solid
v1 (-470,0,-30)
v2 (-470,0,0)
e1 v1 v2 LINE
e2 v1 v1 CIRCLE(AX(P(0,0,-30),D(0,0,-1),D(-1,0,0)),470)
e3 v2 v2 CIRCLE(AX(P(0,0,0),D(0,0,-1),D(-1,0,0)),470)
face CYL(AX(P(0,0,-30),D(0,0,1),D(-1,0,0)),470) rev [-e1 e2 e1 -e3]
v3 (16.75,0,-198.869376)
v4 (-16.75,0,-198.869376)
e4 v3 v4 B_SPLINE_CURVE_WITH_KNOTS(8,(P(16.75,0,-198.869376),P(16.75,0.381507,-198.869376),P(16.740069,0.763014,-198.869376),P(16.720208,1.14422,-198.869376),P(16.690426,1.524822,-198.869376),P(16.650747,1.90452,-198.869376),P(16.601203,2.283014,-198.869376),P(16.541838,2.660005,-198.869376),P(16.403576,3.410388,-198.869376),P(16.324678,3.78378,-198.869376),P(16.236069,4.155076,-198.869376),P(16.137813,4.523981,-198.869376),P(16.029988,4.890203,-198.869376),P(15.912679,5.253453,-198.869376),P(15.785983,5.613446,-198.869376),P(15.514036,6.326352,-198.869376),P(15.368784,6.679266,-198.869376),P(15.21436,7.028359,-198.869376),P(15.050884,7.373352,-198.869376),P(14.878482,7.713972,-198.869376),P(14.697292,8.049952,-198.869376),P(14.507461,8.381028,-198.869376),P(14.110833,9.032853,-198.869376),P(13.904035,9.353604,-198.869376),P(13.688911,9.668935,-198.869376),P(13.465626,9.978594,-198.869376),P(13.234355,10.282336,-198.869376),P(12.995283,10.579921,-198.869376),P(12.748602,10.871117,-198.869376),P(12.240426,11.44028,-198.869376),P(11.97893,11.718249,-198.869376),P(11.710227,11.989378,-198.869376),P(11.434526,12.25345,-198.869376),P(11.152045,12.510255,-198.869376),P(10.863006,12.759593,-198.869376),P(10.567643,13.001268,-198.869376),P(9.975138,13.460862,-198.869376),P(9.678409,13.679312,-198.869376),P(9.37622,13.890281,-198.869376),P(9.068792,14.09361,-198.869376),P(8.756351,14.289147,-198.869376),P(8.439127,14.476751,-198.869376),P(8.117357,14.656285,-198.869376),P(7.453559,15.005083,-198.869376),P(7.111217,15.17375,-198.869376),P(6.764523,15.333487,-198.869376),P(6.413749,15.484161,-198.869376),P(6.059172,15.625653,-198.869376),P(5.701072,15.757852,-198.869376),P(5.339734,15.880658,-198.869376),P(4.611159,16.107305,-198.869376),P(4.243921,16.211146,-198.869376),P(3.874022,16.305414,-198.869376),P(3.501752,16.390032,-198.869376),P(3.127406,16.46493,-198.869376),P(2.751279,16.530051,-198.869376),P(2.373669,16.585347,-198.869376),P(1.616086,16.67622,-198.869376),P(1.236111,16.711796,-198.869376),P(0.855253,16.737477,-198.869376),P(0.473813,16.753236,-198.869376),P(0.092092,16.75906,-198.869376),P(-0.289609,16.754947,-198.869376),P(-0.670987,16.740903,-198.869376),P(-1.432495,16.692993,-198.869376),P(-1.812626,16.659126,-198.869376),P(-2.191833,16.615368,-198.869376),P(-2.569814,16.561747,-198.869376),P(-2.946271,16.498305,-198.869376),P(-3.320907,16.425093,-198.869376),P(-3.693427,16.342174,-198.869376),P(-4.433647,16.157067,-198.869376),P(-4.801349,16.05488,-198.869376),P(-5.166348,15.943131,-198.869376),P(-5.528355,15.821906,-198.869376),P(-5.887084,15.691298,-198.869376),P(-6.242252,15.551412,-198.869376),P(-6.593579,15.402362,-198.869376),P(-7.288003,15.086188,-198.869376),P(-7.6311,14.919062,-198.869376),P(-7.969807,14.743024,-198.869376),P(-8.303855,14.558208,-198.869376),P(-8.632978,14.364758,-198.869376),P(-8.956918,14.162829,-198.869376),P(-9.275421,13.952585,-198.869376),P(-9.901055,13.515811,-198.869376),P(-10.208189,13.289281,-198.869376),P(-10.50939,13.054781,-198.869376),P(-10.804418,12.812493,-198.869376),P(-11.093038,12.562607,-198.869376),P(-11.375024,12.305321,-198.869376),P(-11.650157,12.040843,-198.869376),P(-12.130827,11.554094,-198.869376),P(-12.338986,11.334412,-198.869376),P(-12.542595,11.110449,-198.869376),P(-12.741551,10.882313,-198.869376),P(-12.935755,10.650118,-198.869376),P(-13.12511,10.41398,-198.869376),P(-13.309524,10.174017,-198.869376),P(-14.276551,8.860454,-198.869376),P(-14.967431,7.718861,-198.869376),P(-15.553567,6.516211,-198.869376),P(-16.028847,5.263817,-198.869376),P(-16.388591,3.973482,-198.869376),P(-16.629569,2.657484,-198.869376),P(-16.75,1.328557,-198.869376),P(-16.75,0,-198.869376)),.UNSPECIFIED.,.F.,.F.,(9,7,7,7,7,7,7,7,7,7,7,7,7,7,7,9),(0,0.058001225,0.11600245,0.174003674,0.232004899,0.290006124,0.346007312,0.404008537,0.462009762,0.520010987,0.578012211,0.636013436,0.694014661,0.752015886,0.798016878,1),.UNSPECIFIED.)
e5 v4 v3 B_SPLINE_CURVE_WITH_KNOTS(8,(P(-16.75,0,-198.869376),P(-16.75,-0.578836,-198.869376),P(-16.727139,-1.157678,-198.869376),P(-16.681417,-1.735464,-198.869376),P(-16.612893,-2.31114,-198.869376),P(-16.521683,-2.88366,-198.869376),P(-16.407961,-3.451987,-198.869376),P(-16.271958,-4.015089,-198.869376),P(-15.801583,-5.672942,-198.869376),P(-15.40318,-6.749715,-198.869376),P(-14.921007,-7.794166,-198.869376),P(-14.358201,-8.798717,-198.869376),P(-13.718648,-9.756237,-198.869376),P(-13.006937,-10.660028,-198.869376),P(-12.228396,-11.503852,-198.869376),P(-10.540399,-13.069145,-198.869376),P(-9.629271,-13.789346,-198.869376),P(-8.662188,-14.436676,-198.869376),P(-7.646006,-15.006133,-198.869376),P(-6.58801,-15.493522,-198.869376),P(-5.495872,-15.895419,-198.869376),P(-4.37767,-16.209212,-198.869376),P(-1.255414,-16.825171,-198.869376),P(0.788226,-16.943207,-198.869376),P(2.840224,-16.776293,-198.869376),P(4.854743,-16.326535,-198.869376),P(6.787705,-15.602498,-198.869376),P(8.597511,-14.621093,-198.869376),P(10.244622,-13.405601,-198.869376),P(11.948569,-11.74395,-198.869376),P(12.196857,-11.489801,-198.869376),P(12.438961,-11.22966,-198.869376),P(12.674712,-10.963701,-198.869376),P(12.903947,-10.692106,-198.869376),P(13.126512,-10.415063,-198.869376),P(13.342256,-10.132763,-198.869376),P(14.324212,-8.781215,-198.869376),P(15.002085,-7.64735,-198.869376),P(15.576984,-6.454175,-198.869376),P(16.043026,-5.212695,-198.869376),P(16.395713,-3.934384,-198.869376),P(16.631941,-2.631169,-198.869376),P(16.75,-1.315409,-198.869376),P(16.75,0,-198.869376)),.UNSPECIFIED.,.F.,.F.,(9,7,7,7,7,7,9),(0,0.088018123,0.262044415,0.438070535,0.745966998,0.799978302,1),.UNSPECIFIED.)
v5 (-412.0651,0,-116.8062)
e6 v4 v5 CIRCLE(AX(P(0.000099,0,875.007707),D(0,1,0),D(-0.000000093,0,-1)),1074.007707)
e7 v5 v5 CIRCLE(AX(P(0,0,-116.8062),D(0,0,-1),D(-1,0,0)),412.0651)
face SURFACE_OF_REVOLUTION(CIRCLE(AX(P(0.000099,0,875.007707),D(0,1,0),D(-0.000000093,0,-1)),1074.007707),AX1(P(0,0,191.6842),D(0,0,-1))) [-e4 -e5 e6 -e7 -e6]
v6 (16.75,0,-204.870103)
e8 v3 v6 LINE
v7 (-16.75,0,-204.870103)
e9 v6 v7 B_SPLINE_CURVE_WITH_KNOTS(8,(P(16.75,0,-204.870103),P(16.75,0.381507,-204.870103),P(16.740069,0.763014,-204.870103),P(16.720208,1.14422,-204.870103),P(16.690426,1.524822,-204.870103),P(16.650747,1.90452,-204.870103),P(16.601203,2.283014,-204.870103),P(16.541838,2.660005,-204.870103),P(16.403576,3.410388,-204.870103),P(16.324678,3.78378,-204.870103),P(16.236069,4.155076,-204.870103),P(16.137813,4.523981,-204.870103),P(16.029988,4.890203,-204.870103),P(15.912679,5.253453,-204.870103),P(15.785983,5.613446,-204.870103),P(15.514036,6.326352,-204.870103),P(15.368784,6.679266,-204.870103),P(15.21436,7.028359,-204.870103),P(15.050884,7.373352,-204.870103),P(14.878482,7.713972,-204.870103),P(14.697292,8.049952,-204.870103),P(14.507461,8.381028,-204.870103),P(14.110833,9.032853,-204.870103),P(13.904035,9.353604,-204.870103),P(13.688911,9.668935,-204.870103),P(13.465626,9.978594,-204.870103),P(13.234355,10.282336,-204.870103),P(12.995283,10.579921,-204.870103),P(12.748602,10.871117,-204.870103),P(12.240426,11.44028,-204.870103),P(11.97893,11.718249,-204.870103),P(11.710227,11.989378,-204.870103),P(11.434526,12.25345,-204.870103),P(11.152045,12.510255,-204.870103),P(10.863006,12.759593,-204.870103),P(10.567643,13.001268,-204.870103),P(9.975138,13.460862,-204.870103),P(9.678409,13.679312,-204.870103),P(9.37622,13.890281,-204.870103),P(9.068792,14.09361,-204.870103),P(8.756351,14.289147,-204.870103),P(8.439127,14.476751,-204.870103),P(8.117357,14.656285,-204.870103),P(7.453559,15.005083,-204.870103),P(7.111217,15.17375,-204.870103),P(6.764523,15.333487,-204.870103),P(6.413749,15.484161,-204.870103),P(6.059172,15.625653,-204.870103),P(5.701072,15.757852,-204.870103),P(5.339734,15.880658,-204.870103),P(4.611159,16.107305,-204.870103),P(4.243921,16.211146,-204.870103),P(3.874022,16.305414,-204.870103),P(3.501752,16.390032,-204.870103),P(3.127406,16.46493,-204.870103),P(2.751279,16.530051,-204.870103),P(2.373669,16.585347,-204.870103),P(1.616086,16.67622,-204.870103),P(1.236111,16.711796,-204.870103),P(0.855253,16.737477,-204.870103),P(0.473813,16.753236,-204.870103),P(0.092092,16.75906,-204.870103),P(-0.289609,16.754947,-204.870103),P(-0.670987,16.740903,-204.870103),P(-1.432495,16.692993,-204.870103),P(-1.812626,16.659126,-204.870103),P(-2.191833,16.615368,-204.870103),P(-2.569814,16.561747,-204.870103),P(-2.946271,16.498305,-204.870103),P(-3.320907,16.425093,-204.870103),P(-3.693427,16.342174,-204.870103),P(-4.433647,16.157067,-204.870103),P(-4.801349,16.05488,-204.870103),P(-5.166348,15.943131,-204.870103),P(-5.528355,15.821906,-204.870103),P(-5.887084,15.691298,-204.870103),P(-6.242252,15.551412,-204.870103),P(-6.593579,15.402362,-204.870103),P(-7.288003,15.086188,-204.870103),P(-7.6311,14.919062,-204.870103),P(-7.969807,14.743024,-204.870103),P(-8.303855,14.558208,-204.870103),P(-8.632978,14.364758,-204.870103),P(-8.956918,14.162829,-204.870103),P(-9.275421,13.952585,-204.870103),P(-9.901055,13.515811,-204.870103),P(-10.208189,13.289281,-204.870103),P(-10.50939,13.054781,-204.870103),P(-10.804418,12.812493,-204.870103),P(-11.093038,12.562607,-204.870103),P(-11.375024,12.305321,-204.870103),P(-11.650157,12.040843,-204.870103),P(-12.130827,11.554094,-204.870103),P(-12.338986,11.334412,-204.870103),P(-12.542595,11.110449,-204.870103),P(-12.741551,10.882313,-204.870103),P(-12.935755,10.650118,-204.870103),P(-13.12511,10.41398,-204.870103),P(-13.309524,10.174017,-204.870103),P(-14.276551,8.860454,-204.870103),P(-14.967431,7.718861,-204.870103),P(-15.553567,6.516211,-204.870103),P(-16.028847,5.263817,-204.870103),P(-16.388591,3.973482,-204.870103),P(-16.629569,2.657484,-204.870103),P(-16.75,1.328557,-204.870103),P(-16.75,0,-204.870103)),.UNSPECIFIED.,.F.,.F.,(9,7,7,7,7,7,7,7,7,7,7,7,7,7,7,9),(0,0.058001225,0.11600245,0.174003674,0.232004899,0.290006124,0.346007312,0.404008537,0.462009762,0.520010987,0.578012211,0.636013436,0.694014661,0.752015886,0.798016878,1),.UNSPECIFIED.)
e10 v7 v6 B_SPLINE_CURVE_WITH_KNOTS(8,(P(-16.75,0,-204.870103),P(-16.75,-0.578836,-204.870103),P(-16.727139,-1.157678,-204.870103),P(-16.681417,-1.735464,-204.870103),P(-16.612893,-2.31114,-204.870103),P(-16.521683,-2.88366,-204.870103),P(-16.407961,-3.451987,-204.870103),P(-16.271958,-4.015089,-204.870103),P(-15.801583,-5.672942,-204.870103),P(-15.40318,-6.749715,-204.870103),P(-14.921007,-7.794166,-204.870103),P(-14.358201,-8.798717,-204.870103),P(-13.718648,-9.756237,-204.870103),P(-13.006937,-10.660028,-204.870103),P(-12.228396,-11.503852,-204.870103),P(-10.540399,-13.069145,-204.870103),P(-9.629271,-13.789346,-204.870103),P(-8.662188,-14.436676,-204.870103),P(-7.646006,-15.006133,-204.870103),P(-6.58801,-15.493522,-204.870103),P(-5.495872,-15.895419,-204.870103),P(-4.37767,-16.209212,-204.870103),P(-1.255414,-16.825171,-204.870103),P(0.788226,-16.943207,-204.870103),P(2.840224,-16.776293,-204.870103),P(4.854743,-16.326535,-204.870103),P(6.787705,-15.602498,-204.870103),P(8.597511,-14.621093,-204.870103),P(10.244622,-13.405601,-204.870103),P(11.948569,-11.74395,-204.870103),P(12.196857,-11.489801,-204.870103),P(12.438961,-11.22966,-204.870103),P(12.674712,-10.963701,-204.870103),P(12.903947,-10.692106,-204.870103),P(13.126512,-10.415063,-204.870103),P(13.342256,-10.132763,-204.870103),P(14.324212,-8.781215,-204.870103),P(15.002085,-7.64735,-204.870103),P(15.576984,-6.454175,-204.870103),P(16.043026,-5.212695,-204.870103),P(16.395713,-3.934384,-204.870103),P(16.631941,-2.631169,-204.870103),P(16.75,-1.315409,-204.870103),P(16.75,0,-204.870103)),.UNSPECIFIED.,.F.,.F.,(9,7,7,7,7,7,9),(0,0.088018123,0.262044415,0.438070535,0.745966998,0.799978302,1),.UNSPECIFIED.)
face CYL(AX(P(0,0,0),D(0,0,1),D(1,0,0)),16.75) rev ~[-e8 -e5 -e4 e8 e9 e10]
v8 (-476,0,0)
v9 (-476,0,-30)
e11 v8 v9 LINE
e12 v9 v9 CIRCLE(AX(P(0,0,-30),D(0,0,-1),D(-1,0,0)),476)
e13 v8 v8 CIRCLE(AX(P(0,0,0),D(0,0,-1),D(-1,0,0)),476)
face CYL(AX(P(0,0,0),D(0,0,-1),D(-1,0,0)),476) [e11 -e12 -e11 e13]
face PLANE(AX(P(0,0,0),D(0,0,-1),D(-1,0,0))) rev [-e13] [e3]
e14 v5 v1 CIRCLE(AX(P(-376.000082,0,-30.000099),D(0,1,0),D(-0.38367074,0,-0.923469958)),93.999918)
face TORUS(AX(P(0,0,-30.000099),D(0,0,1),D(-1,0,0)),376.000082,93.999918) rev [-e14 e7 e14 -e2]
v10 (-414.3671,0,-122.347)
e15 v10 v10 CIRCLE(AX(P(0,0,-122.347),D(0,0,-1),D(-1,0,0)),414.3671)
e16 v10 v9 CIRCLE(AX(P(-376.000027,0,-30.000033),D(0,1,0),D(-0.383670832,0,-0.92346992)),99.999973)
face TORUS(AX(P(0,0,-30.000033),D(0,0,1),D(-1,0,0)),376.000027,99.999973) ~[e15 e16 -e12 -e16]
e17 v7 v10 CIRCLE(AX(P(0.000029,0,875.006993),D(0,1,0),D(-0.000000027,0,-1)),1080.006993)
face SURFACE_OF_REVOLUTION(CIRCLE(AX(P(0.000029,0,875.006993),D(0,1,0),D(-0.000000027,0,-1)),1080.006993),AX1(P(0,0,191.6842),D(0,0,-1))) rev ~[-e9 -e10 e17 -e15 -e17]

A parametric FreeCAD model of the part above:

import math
import FreeCAD as App
import Part
import Sketcher
Q = App.Units.Quantity

doc = App.newDocument("Part")
body = doc.addObject("PartDesign::Body", "Body")

# Sketch on XZ plane
sketch1 = body.newObject("Sketcher::SketchObject", "Sketch")
sketch1.AttachmentSupport = (doc.getObject("XZ_Plane"), [""])
sketch1.MapMode = "FlatFace"
sketch1.addGeometry([
    Part.LineSegment(App.Vector(-476, -30, 0), App.Vector(-476, 0, 0)),  # 0
    Part.LineSegment(App.Vector(-476, 0, 0), App.Vector(-470, 0, 0)),  # 1
    Part.LineSegment(App.Vector(-470, 0, 0), App.Vector(-470, -30, 0)),  # 2
    Part.ArcOfCircle(Part.Circle(App.Vector(-376, -30, 0), App.Vector(0, 0, 1), 94), math.radians(180), math.radians(247)),  # 3
    Part.ArcOfCircle(Part.Circle(App.Vector(0, 875, 0), App.Vector(0, 0, 1), 1074), math.radians(-113), math.radians(-90)),  # 4
    Part.LineSegment(App.Vector(0, -199, 0), App.Vector(0, -205, 0)),  # 5
    Part.ArcOfCircle(Part.Circle(App.Vector(0, 875, 0), App.Vector(0, 0, 1), 1080), math.radians(-113), math.radians(-90)),  # 6
    Part.ArcOfCircle(Part.Circle(App.Vector(-376, -30, 0), App.Vector(0, 0, 1), 100), math.radians(180), math.radians(247)),  # 7
], False)
sketch1.addConstraint([
    Sketcher.Constraint("Coincident", 0, 2, 1, 1),
    Sketcher.Constraint("Coincident", 1, 2, 2, 1),
    Sketcher.Constraint("Tangent", 2, 2, 3, 1),
    Sketcher.Constraint("Tangent", 3, 2, 4, 1),
    Sketcher.Constraint("Coincident", 4, 2, 5, 1),
    Sketcher.Constraint("Coincident", 5, 2, 6, 2),
    Sketcher.Constraint("Tangent", 6, 1, 7, 2),
    Sketcher.Constraint("Tangent", 7, 1, 0, 1),
    Sketcher.Constraint("Vertical", 0),
    Sketcher.Constraint("Horizontal", 1),
    Sketcher.Constraint("Vertical", 2),
    Sketcher.Constraint("Vertical", 5),
    Sketcher.Constraint("Coincident", 7, 3, 3, 3),
    Sketcher.Constraint("PointOnObject", 4, 3, -2),
    Sketcher.Constraint("PointOnObject", 6, 3, -2),
    Sketcher.Constraint("PointOnObject", 0, 2, -1),
    Sketcher.Constraint("PointOnObject", 5, 2, -2),
    Sketcher.Constraint("Equal", 1, 5),
    Sketcher.Constraint("Radius", 7, Q("100 mm")),
    Sketcher.Constraint("DistanceX", 1, 1, 1, 2, Q("6 mm")),
    Sketcher.Constraint("DistanceY", 0, 1, 0, 2, Q("30 mm")),
    Sketcher.Constraint("DistanceY", 5, 2, -1, 1, Q("205 mm")),
    Sketcher.Constraint("Radius", 6, Q("1080.0067 mm")),
])
revolution = body.newObject("PartDesign::Revolution", "Revolution")
revolution.Profile = sketch1
revolution.ReferenceAxis = (sketch1, ["V_Axis"])
revolution.Angle = 360

# Sketch on XY plane
sketch2 = body.newObject("Sketcher::SketchObject", "Sketch001")
sketch2.AttachmentSupport = (doc.getObject("XY_Plane"), [""])
sketch2.MapMode = "FlatFace"
sketch2.addGeometry(Part.Circle(App.Vector(0, 0, 0), App.Vector(0, 0, 1), 17), False)
sketch2.addConstraint([
    Sketcher.Constraint("Coincident", 0, 3, -1, 1),
    Sketcher.Constraint("Diameter", 0, Q("33.5 mm")),
])
pocket1 = body.newObject("PartDesign::Pocket", "Pocket")
pocket1.Profile = sketch2
pocket1.Type = "ThroughAll"

doc.recompute()
